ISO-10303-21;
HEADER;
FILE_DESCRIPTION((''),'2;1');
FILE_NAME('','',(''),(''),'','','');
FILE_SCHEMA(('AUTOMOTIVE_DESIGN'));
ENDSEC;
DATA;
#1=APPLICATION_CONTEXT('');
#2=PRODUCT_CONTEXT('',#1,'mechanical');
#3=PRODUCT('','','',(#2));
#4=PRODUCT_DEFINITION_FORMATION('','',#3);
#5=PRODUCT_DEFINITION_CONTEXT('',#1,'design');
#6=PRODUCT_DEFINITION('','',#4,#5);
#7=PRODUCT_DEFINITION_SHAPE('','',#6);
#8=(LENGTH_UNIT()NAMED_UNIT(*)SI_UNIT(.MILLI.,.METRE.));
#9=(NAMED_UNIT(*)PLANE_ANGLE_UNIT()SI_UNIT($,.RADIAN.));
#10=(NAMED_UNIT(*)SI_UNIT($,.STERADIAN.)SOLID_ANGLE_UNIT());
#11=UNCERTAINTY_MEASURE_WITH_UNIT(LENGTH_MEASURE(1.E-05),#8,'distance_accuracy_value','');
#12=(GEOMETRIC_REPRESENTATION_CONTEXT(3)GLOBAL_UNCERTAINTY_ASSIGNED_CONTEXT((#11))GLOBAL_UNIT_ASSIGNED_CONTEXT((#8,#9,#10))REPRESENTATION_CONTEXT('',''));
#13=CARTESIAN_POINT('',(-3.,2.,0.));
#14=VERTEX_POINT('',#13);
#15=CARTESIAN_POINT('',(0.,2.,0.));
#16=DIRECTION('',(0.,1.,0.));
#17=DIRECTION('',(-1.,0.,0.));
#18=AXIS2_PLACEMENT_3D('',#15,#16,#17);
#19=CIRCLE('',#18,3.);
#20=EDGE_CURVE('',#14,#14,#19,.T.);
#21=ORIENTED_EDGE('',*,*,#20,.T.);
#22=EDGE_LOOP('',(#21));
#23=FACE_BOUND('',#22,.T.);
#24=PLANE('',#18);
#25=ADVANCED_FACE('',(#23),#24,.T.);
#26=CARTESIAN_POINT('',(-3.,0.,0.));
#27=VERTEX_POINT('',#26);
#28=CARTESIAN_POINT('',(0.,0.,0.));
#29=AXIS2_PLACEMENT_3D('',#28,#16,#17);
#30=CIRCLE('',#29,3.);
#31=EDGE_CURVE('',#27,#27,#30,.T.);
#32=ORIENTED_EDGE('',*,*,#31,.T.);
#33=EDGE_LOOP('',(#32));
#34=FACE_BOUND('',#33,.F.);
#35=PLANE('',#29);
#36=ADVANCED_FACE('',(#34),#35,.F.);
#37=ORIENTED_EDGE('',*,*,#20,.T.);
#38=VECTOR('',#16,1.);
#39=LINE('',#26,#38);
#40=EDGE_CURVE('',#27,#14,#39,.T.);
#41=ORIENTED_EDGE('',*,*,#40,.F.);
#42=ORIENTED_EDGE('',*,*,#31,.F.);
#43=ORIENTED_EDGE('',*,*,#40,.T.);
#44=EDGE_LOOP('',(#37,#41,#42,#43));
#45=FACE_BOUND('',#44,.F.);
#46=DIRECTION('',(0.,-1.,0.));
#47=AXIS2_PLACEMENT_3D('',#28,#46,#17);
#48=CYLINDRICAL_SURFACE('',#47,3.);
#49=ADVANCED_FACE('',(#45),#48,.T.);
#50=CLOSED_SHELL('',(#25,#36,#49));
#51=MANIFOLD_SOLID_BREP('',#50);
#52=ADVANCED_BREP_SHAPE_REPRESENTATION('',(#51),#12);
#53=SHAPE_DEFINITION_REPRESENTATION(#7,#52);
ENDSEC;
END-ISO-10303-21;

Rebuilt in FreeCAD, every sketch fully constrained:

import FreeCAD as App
import Part
import Sketcher
from FreeCAD import Vector
Q = App.Units.Quantity

doc = App.newDocument("Part")
params = doc.addObject("Spreadsheet::Sheet", "Params")
for row, (alias, value) in enumerate([
    ("sketch1_diameter", "6 mm"),
    ("pad1_length", "2 mm"),
], start=1):
    params.set(f"A{row}", alias)
    params.set(f"B{row}", "=" + value)
    params.setAlias(f"B{row}", alias)

body = doc.addObject("PartDesign::Body", "Body")

# Sketch on XZ plane
sketch1 = body.newObject("Sketcher::SketchObject", "Sketch")
sketch1.AttachmentSupport = (doc.getObject("XZ_Plane"), [""])
sketch1.MapMode = "FlatFace"
sketch1.addGeometry(Part.Circle(Vector(0, 0, 0), Vector(0, 0, 1), 3), False)
sketch1.addConstraint(Sketcher.Constraint("Coincident", 0, 3, -1, 1))
sketch1.addConstraint(Sketcher.Constraint("Diameter", 0, Q("6 mm")))
sketch1.setExpression("Constraints[1]", "Params.sketch1_diameter")
pad1 = body.newObject("PartDesign::Pad", "Pad")
pad1.Profile = sketch1
pad1.setExpression("Length", "Params.pad1_length")
pad1.Reversed = True

doc.recompute()
